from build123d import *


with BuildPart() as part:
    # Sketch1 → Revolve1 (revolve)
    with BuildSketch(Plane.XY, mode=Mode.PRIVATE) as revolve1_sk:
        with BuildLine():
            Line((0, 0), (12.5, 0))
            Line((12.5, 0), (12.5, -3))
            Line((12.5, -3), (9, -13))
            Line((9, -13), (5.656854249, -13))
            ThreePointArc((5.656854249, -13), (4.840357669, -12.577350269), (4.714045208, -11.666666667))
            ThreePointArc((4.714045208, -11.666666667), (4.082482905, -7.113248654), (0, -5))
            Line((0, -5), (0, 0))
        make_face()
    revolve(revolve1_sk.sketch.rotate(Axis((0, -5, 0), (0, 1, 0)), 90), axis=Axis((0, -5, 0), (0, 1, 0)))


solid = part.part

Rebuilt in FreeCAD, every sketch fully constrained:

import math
import FreeCAD as App
import Part
import Sketcher

doc = App.newDocument("Part")
params = doc.addObject("Spreadsheet::Sheet", "Params")
for row, (alias, value) in enumerate([
    ("sketch1_radius", "5 mm"),
    ("sketch1_radius2", "1 mm"),
    ("sketch1_height", "5 mm"),
    ("sketch1_height2", "3 mm"),
    ("sketch1_width", "12.5 mm"),
    ("revolution_angle", "360 deg"),
], start=1):
    params.set(f"A{row}", alias)
    params.set(f"B{row}", "=" + value)
    params.setAlias(f"B{row}", alias)

body = doc.addObject("PartDesign::Body", "Body")

sketch1 = body.newObject("Sketcher::SketchObject", "Sketch")
sketch1.AttachmentSupport = (doc.getObject("XY_Plane"), [""])
sketch1.MapMode = "FlatFace"
sketch1.addGeometry([
    Part.LineSegment(App.Vector(12.5, 0, 0), App.Vector(0, 0, 0)),
    Part.LineSegment(App.Vector(0, 0, 0), App.Vector(0, -5, 0)),
    Part.ArcOfCircle(Part.Circle(App.Vector(0, -10, 0), App.Vector(0, 0, 1), 5), math.radians(-19), math.radians(90)),
    Part.ArcOfCircle(Part.Circle(App.Vector(5.7, -12, 0), App.Vector(0, 0, 1), 1), math.radians(161), math.radians(270)),
    Part.LineSegment(App.Vector(5.7, -13, 0), App.Vector(9, -13, 0)),
    Part.LineSegment(App.Vector(9, -13, 0), App.Vector(12.5, -3, 0)),
    Part.LineSegment(App.Vector(12.5, -3, 0), App.Vector(12.5, 0, 0)),
], False)
sketch1.addConstraint([
    Sketcher.Constraint("Coincident", 0, 2, 1, 1),
    Sketcher.Constraint("Coincident", 1, 2, 2, 2),
    Sketcher.Constraint("Tangent", 2, 1, 3, 1),
    Sketcher.Constraint("Tangent", 3, 2, 4, 1),
    Sketcher.Constraint("Coincident", 4, 2, 5, 1),
    Sketcher.Constraint("Coincident", 5, 2, 6, 1),
    Sketcher.Constraint("Coincident", 6, 2, 0, 1),
    Sketcher.Constraint("Horizontal", 0),
    Sketcher.Constraint("Vertical", 1),
    Sketcher.Constraint("Horizontal", 4),
    Sketcher.Constraint("Vertical", 6),
    Sketcher.Constraint("Coincident", 0, 2, -1, 1),
    Sketcher.Constraint("PointOnObject", 2, 3, -2),
    Sketcher.Constraint("Radius", 2, 5.0),
    Sketcher.Constraint("Radius", 3, 1.0),
    Sketcher.Constraint("DistanceY", 1, 2, 1, 1, 5.0),
    Sketcher.Constraint("DistanceY", 6, 1, 6, 2, 3.0),
    Sketcher.Constraint("DistanceX", 0, 2, 0, 1, 12.5),
    Sketcher.Constraint("DistanceY", 3, 3, -1, 1, 12.0),
    Sketcher.Constraint("DistanceX", -1, 1, 4, 2, 9.0),
])
sketch1.setExpression("Constraints[13]", "Params.sketch1_radius")
sketch1.setExpression("Constraints[14]", "Params.sketch1_radius2")
sketch1.setExpression("Constraints[15]", "Params.sketch1_height")
sketch1.setExpression("Constraints[16]", "Params.sketch1_height2")
sketch1.setExpression("Constraints[17]", "Params.sketch1_width")
revolution = body.newObject("PartDesign::Revolution", "Revolution")
revolution.Profile = sketch1
revolution.ReferenceAxis = (sketch1, ["V_Axis"])
revolution.setExpression("Angle", "Params.revolution_angle")

doc.recompute()
